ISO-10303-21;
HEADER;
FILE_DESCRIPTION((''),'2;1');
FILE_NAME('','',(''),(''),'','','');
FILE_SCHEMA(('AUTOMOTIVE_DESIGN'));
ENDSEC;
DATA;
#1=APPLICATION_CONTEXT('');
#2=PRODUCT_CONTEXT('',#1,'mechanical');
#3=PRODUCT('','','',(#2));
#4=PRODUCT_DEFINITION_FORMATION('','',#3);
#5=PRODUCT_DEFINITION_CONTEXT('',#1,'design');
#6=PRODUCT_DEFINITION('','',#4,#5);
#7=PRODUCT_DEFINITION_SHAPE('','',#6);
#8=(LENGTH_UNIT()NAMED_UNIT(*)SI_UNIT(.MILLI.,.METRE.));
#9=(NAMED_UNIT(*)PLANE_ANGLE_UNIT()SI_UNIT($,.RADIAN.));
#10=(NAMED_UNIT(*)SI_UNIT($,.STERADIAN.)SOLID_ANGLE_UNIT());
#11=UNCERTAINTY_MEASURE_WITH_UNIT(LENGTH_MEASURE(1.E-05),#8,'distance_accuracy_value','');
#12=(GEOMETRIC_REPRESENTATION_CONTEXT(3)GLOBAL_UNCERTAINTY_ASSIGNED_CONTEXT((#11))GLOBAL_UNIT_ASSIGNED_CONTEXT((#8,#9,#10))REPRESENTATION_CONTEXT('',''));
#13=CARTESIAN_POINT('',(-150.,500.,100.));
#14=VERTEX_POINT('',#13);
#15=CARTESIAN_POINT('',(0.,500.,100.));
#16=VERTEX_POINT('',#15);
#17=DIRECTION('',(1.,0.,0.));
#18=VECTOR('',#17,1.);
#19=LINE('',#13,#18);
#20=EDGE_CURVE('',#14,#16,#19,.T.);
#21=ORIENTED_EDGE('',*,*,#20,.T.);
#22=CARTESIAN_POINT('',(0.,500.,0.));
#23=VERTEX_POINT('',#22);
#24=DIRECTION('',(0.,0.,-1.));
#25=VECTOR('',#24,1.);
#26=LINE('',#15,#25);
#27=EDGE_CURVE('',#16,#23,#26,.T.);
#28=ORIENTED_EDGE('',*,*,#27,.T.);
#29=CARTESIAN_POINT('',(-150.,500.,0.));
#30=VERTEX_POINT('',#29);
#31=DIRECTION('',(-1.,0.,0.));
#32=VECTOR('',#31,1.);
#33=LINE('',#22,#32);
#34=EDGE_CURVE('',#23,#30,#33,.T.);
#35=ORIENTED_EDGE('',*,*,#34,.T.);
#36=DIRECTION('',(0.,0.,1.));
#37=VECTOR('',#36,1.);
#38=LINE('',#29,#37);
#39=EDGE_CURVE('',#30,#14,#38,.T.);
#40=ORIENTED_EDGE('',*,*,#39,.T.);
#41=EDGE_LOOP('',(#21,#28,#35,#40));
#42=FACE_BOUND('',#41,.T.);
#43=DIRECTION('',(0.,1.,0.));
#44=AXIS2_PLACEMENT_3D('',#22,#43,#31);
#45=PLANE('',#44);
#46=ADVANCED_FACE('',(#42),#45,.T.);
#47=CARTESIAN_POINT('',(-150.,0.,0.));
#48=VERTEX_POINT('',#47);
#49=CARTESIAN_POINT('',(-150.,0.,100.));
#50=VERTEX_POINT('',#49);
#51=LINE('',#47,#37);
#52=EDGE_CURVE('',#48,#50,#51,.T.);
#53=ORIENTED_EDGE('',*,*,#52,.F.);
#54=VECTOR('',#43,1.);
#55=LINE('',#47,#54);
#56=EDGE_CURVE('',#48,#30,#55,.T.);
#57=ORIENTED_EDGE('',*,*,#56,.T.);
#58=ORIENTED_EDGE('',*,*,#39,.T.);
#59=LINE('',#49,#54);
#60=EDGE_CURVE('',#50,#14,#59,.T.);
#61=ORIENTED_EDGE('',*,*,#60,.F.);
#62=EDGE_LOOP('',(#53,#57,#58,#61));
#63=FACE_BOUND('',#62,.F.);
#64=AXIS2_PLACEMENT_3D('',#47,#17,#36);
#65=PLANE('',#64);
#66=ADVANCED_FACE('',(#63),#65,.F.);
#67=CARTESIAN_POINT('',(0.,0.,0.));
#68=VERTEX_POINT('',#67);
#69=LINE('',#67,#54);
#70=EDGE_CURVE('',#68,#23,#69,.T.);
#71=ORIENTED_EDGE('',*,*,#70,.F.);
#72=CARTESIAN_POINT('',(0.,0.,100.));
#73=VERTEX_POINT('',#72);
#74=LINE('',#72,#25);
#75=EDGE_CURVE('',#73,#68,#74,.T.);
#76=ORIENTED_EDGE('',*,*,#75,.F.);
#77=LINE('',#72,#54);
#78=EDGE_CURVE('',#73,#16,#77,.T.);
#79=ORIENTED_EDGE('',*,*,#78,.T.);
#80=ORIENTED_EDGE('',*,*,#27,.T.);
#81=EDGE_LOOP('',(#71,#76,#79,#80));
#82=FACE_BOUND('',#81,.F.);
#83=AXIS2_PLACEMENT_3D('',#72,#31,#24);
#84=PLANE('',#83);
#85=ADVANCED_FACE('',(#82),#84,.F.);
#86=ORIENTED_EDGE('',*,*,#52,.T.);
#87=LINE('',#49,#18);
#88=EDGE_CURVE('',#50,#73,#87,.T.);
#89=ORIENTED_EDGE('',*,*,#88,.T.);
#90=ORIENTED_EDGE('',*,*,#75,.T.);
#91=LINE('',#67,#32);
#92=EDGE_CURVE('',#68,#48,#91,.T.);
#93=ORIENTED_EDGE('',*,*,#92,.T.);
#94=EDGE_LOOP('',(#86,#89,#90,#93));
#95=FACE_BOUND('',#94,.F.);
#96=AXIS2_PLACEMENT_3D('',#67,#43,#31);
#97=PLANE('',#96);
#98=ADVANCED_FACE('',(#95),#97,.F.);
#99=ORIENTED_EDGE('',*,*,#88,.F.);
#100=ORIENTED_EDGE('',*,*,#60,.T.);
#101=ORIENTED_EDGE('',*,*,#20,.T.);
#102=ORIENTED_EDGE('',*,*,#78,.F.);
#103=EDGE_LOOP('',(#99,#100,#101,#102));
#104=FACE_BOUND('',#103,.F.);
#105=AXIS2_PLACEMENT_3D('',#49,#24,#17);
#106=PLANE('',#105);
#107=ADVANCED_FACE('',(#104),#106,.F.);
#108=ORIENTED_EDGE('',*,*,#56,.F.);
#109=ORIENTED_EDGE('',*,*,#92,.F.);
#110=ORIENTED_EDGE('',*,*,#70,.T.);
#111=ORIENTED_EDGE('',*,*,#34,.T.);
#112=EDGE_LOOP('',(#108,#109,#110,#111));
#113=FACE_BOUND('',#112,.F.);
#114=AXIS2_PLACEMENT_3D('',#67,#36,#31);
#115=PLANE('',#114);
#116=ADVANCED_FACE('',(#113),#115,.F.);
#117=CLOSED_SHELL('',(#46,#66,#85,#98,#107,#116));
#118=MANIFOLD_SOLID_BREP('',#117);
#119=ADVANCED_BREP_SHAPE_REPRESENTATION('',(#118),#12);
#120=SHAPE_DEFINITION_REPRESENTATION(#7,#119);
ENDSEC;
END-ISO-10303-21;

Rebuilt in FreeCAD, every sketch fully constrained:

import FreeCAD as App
import Part
import Sketcher


def add_polygon(sketch, points):
    """Adds a closed chain of lines whose ends are joined by coincident constraints."""
    first, n = sketch.GeometryCount, len(points)
    for a, b in zip(points, points[1:] + points[:1]):
        sketch.addGeometry(Part.LineSegment(App.Vector(*a, 0), App.Vector(*b, 0)), False)
    for i in range(n):
        sketch.addConstraint(Sketcher.Constraint("Coincident", first + i, 2, first + (i + 1) % n, 1))

doc = App.newDocument("Part")
body = doc.addObject("PartDesign::Body", "Body")

sketch1 = body.newObject("Sketcher::SketchObject", "Sketch")
sketch1.AttachmentSupport = (doc.getObject("XZ_Plane"), [""])
sketch1.MapMode = "FlatFace"
add_polygon(sketch1, [(0, 100), (0, 0), (-150, 0), (-150, 100)])
sketch1.addConstraint(Sketcher.Constraint("Vertical", 0))
sketch1.addConstraint(Sketcher.Constraint("Horizontal", 1))
sketch1.addConstraint(Sketcher.Constraint("Vertical", 2))
sketch1.addConstraint(Sketcher.Constraint("Horizontal", 3))
sketch1.addConstraint(Sketcher.Constraint("Coincident", 0, 2, -1, 1))
sketch1.addConstraint(Sketcher.Constraint("DistanceX", 1, 2, 1, 1, 150.0))
sketch1.addConstraint(Sketcher.Constraint("DistanceY", 0, 2, 0, 1, 100.0))
pad1 = body.newObject("PartDesign::Pad", "Pad")
pad1.Profile = sketch1
pad1.Length = 500
pad1.Reversed = True

doc.recompute()
